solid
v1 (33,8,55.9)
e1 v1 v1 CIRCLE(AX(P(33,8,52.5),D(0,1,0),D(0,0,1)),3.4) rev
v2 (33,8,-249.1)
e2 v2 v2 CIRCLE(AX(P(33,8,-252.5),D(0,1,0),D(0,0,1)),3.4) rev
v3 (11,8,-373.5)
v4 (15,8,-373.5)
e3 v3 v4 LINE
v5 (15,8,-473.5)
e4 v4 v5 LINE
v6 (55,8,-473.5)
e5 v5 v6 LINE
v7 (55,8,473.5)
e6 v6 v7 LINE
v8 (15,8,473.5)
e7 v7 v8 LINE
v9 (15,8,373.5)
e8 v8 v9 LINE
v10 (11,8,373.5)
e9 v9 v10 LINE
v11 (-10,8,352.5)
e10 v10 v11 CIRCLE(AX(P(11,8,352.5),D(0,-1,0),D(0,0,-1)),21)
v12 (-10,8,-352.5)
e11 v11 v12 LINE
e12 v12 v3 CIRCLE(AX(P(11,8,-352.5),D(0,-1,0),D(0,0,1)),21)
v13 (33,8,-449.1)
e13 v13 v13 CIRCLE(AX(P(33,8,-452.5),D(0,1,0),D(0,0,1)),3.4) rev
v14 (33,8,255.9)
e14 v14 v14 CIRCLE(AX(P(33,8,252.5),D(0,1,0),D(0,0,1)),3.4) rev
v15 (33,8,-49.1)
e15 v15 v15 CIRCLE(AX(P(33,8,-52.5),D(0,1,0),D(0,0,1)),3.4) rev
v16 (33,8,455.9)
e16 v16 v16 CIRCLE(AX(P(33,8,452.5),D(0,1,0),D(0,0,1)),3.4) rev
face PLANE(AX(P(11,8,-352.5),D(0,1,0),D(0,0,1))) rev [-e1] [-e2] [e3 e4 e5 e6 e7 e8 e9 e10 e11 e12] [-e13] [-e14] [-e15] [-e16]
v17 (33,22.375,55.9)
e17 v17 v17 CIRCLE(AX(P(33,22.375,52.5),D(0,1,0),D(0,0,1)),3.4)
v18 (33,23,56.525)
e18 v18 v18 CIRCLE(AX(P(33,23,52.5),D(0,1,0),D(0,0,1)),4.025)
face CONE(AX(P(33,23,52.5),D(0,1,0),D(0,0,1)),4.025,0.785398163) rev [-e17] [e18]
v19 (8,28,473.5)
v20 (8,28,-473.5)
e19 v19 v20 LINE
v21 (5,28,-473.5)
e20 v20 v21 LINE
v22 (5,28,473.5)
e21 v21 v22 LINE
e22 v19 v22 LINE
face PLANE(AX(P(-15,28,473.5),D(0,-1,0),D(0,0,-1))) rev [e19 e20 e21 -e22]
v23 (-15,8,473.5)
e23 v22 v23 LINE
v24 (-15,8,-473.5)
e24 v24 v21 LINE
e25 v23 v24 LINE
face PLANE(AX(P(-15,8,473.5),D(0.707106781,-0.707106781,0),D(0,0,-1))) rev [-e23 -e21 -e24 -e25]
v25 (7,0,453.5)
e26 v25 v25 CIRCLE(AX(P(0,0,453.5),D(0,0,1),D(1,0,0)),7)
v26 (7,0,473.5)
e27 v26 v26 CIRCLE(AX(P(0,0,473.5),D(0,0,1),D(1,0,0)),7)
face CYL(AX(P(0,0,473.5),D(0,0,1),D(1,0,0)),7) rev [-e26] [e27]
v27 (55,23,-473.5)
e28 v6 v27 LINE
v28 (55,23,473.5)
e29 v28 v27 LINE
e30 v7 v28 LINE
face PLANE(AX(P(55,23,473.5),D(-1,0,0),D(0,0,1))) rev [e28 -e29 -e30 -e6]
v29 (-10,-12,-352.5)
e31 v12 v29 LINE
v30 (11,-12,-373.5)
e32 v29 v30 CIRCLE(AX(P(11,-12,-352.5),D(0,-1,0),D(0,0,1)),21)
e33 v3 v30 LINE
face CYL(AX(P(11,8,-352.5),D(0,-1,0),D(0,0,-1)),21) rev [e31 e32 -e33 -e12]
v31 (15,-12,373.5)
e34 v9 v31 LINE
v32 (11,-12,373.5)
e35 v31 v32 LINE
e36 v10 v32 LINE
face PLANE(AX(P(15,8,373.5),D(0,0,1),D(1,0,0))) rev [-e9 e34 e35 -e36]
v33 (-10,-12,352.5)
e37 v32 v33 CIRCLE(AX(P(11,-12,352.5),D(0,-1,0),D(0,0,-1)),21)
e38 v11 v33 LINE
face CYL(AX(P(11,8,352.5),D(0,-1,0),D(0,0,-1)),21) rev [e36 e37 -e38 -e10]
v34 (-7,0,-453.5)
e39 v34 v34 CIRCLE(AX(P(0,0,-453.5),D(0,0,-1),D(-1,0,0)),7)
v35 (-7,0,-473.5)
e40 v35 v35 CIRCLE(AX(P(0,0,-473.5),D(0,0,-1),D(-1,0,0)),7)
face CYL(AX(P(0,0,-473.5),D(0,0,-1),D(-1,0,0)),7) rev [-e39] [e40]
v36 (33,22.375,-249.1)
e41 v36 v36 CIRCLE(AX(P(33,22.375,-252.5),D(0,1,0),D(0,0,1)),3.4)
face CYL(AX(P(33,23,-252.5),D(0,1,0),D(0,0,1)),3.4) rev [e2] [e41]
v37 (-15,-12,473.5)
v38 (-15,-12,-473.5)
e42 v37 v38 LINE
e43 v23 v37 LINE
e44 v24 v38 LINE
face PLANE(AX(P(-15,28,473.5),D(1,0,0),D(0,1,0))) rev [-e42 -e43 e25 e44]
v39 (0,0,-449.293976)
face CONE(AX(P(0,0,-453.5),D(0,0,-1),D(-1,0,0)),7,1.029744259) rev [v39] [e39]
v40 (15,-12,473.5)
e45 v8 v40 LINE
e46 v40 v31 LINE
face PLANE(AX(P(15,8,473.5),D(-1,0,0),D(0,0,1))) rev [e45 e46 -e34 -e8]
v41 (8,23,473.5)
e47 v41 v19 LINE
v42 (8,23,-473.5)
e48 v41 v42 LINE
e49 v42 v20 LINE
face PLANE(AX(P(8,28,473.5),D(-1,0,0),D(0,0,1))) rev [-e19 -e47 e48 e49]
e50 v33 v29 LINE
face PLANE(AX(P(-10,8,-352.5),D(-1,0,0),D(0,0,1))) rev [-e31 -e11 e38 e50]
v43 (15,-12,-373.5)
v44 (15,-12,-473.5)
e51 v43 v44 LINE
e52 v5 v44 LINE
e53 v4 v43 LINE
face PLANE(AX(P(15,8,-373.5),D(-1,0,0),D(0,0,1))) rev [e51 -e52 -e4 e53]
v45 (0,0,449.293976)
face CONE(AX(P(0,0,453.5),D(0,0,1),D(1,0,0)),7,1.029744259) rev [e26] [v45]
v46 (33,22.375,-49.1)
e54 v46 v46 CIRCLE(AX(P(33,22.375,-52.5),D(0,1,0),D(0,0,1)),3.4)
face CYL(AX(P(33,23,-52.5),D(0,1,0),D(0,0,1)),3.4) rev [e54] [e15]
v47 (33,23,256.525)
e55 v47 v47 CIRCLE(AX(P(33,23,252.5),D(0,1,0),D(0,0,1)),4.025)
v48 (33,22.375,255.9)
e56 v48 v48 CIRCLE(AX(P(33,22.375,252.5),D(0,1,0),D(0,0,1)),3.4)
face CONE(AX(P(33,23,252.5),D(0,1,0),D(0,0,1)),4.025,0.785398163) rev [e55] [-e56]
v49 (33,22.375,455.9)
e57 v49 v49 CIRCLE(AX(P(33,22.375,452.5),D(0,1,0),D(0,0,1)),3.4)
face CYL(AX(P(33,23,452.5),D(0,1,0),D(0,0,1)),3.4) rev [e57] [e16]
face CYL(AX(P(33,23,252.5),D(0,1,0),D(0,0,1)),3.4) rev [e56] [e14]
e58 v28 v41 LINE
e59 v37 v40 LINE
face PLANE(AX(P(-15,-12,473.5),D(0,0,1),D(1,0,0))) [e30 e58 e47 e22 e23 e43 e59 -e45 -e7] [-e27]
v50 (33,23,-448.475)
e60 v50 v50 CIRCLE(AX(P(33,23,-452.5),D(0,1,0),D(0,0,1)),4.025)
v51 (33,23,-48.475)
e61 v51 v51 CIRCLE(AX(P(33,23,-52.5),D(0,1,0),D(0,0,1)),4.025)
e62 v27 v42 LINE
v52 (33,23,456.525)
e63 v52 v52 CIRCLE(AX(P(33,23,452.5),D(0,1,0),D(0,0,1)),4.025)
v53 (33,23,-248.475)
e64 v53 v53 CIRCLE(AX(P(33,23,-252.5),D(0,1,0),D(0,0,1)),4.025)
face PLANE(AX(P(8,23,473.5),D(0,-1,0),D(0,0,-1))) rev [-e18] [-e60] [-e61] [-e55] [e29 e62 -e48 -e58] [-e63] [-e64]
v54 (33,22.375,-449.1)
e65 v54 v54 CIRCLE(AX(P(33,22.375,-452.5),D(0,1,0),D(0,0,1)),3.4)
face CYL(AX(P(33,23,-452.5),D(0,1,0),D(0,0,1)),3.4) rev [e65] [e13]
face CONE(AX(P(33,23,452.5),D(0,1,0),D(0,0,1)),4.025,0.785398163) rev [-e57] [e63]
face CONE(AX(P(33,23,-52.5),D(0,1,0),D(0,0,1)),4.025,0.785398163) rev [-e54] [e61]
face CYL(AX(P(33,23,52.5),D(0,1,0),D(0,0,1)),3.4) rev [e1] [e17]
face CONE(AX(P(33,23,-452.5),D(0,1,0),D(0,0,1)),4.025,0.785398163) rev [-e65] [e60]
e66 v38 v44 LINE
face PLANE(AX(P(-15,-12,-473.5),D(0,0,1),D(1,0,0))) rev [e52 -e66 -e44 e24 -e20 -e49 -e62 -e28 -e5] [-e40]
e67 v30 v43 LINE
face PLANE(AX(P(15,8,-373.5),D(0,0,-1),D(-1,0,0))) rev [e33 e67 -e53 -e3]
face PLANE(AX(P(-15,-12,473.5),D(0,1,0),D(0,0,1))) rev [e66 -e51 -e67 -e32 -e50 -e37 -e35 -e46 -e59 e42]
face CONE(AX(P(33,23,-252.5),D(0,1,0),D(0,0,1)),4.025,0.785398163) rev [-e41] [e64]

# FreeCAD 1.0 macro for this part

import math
import FreeCAD as App
import Part
import Sketcher

V = App.Vector
Q = App.Units.Quantity


def edges_at(feature, points):
    """Names of the edges that pass closest to the given points."""
    edges = feature.Shape.Edges
    near = lambda p: min(range(len(edges)), key=lambda i: edges[i].distToShape(Part.Vertex(*p))[0])
    return sorted({f"Edge{near(p) + 1}" for p in points})


def add_polygon(sketch, points):
    """Adds a closed chain of lines whose ends are joined by coincident constraints."""
    first, n = sketch.GeometryCount, len(points)
    for a, b in zip(points, points[1:] + points[:1]):
        sketch.addGeometry(Part.LineSegment(App.Vector(*a, 0), App.Vector(*b, 0)), False)
    for i in range(n):
        sketch.addConstraint(Sketcher.Constraint("Coincident", first + i, 2, first + (i + 1) % n, 1))

doc = App.newDocument("Part")
body = doc.addObject("PartDesign::Body", "Body")

# Sketch on XY plane
sketch1 = body.newObject("Sketcher::SketchObject", "Sketch")
sketch1.AttachmentSupport = (doc.getObject("XY_Plane"), [""])
sketch1.MapMode = "FlatFace"
add_polygon(sketch1, [(8, 23), (8, 28), (-15, 28), (-15, -12), (55, -12), (55, 23)])  # lines 0-5
sketch1.addConstraint([
    Sketcher.Constraint("Vertical", 0),
    Sketcher.Constraint("Horizontal", 1),
    Sketcher.Constraint("Vertical", 2),
    Sketcher.Constraint("Horizontal", 3),
    Sketcher.Constraint("Vertical", 4),
    Sketcher.Constraint("Horizontal", 5),
    Sketcher.Constraint("DistanceX", 1, 2, 1, 1, Q("23 mm")),
    Sketcher.Constraint("DistanceX", 3, 1, 3, 2, Q("70 mm")),
    Sketcher.Constraint("DistanceY", 0, 1, 0, 2, Q("5 mm")),
    Sketcher.Constraint("DistanceY", 2, 2, 2, 1, Q("40 mm")),
    Sketcher.Constraint("DistanceX", -1, 1, 0, 2, Q("8 mm")),
    Sketcher.Constraint("DistanceY", -1, 1, 0, 2, Q("28 mm")),
])
pad1 = body.newObject("PartDesign::Pad", "Pad")
pad1.Profile = sketch1
pad1.Length = 947
pad1.Midplane = True

# Sketch on XZ plane
sketch2 = body.newObject("Sketcher::SketchObject", "Sketch001")
sketch2.AttachmentSupport = (doc.getObject("XZ_Plane"), [""])
sketch2.MapMode = "FlatFace"
sketch2.AttachmentOffset = App.Placement(V(0, 0, -23), App.Rotation())
sketch2.addGeometry([
    Part.Circle(V(33, 452.5, 0), V(0, 0, 1), 3.4),  # 0
    Part.Circle(V(33, -52.5, 0), V(0, 0, 1), 3.4),  # 1
    Part.Circle(V(33, 252.5, 0), V(0, 0, 1), 3.4),  # 2
    Part.Circle(V(33, -252.5, 0), V(0, 0, 1), 3.4),  # 3
    Part.Circle(V(33, 52.5, 0), V(0, 0, 1), 3.4),  # 4
    Part.Circle(V(33, -452.5, 0), V(0, 0, 1), 3.4),  # 5
], False)
sketch2.addConstraint([
    Sketcher.Constraint("Equal", 0, 1),
    Sketcher.Constraint("Equal", 1, 2),
    Sketcher.Constraint("Equal", 2, 3),
    Sketcher.Constraint("Equal", 3, 4),
    Sketcher.Constraint("Equal", 4, 5),
    Sketcher.Constraint("Symmetric", 2, 3, 3, 3, -1),
    Sketcher.Constraint("Symmetric", 1, 3, 4, 3, -1),
    Sketcher.Constraint("Symmetric", 0, 3, 5, 3, -1),
    Sketcher.Constraint("Vertical", 0, 3, 1, 3),
    Sketcher.Constraint("Vertical", 1, 3, 2, 3),
    Sketcher.Constraint("Diameter", 0, Q("6.8 mm")),
    Sketcher.Constraint("DistanceX", -1, 1, 0, 3, Q("33 mm")),
    Sketcher.Constraint("DistanceY", 1, 3, 0, 3, Q("505 mm")),
    Sketcher.Constraint("DistanceY", 2, 3, 0, 3, Q("200 mm")),
    Sketcher.Constraint("DistanceY", 3, 3, 1, 3, Q("200 mm")),
])
doc.recompute()
hole = body.newObject("PartDesign::Hole", "Hole")
hole.Profile = sketch2
hole.ThreadType = "None"
hole.Diameter = 6.8
hole.DepthType = "ThroughAll"
hole.HoleCutType = "Countersink"
hole.HoleCutDiameter = 8.05
hole.HoleCutCountersinkAngle = 90
hole.Reversed = True

# Sketch on XZ plane
sketch3 = body.newObject("Sketcher::SketchObject", "Sketch002")
sketch3.AttachmentSupport = (doc.getObject("XZ_Plane"), [""])
sketch3.MapMode = "FlatFace"
sketch3.AttachmentOffset = App.Placement(V(0, 0, 12), App.Rotation())
sketch3.addGeometry([
    Part.LineSegment(V(55, 473.5, 0), V(15, 473.5, 0)),  # 0
    Part.LineSegment(V(15, 473.5, 0), V(15, 373.5, 0)),  # 1
    Part.LineSegment(V(15, 373.5, 0), V(11, 373.5, 0)),  # 2
    Part.ArcOfCircle(Part.Circle(V(11, 352.5, 0), V(0, 0, 1), 21), math.radians(90), math.radians(180)),  # 3
    Part.LineSegment(V(-10, 352.5, 0), V(-10, -352.5, 0)),  # 4
    Part.ArcOfCircle(Part.Circle(V(11, -352.5, 0), V(0, 0, 1), 21), math.radians(180), math.radians(270)),  # 5
    Part.LineSegment(V(11, -373.5, 0), V(15, -373.5, 0)),  # 6
    Part.LineSegment(V(15, -373.5, 0), V(15, -473.5, 0)),  # 7
    Part.LineSegment(V(15, -473.5, 0), V(55, -473.5, 0)),  # 8
    Part.LineSegment(V(55, -473.5, 0), V(55, 473.5, 0)),  # 9
], False)
sketch3.addConstraint([
    Sketcher.Constraint("Coincident", 0, 2, 1, 1),
    Sketcher.Constraint("Coincident", 1, 2, 2, 1),
    Sketcher.Constraint("Tangent", 2, 2, 3, 1),
    Sketcher.Constraint("Tangent", 3, 2, 4, 1),
    Sketcher.Constraint("Tangent", 4, 2, 5, 1),
    Sketcher.Constraint("Tangent", 5, 2, 6, 1),
    Sketcher.Constraint("Coincident", 6, 2, 7, 1),
    Sketcher.Constraint("Coincident", 7, 2, 8, 1),
    Sketcher.Constraint("Coincident", 8, 2, 9, 1),
    Sketcher.Constraint("Coincident", 9, 2, 0, 1),
    Sketcher.Constraint("Horizontal", 0),
    Sketcher.Constraint("Vertical", 1),
    Sketcher.Constraint("Horizontal", 2),
    Sketcher.Constraint("Vertical", 4),
    Sketcher.Constraint("Horizontal", 6),
    Sketcher.Constraint("Vertical", 7),
    Sketcher.Constraint("Horizontal", 8),
    Sketcher.Constraint("Vertical", 9),
    Sketcher.Constraint("Equal", 3, 5),
    Sketcher.Constraint("Symmetric", 1, 2, 6, 2, -1),
    Sketcher.Constraint("Equal", 1, 7),
    Sketcher.Constraint("Radius", 3, Q("21 mm")),
    Sketcher.Constraint("DistanceX", 0, 2, 0, 1, Q("40 mm")),
    Sketcher.Constraint("DistanceX", 2, 2, 2, 1, Q("4 mm")),
    Sketcher.Constraint("DistanceY", 1, 2, 1, 1, Q("100 mm")),
    Sketcher.Constraint("DistanceY", 4, 2, 4, 1, Q("705 mm")),
    Sketcher.Constraint("DistanceX", -1, 1, 3, 3, Q("11 mm")),
])
pocket1 = body.newObject("PartDesign::Pocket", "Pocket")
pocket1.Profile = sketch3
pocket1.Length = 20
doc.recompute()

chamfer = body.newObject("PartDesign::Chamfer", "Chamfer")
chamfer.Base = (pocket1, edges_at(pocket1, [(-15, 28, 0)]))
chamfer.Size = 20

# Sketch on XY plane
sketch4 = body.newObject("Sketcher::SketchObject", "Sketch003")
sketch4.AttachmentSupport = (doc.getObject("XY_Plane"), [""])
sketch4.MapMode = "FlatFace"
sketch4.AttachmentOffset = App.Placement(V(0, 0, 473.5), App.Rotation())
sketch4.addGeometry(Part.Circle(V(0, 0, 0), V(0, 0, 1), 7), False)
sketch4.addConstraint([
    Sketcher.Constraint("Coincident", 0, 3, -1, 1),
    Sketcher.Constraint("Diameter", 0, Q("14 mm")),
])
doc.recompute()
hole2 = body.newObject("PartDesign::Hole", "Hole001")
hole2.Profile = sketch4
hole2.ThreadType = "None"
hole2.Diameter = 14
hole2.DepthType = "Dimension"
hole2.Depth = 20
hole2.DrillPoint = "Angled"
hole2.DrillPointAngle = 118

# Sketch on XY plane
sketch5 = body.newObject("Sketcher::SketchObject", "Sketch004")
sketch5.AttachmentSupport = (doc.getObject("XY_Plane"), [""])
sketch5.MapMode = "FlatFace"
sketch5.AttachmentOffset = App.Placement(V(0, 0, -473.5), App.Rotation())
sketch5.addGeometry(Part.Circle(V(0, 0, 0), V(0, 0, 1), 7), False)
sketch5.addConstraint([
    Sketcher.Constraint("Coincident", 0, 3, -1, 1),
    Sketcher.Constraint("Diameter", 0, Q("14 mm")),
])
doc.recompute()
hole3 = body.newObject("PartDesign::Hole", "Hole002")
hole3.Profile = sketch5
hole3.ThreadType = "None"
hole3.Diameter = 14
hole3.DepthType = "Dimension"
hole3.Depth = 20
hole3.DrillPoint = "Angled"
hole3.DrillPointAngle = 118
hole3.Reversed = True

doc.recompute()
